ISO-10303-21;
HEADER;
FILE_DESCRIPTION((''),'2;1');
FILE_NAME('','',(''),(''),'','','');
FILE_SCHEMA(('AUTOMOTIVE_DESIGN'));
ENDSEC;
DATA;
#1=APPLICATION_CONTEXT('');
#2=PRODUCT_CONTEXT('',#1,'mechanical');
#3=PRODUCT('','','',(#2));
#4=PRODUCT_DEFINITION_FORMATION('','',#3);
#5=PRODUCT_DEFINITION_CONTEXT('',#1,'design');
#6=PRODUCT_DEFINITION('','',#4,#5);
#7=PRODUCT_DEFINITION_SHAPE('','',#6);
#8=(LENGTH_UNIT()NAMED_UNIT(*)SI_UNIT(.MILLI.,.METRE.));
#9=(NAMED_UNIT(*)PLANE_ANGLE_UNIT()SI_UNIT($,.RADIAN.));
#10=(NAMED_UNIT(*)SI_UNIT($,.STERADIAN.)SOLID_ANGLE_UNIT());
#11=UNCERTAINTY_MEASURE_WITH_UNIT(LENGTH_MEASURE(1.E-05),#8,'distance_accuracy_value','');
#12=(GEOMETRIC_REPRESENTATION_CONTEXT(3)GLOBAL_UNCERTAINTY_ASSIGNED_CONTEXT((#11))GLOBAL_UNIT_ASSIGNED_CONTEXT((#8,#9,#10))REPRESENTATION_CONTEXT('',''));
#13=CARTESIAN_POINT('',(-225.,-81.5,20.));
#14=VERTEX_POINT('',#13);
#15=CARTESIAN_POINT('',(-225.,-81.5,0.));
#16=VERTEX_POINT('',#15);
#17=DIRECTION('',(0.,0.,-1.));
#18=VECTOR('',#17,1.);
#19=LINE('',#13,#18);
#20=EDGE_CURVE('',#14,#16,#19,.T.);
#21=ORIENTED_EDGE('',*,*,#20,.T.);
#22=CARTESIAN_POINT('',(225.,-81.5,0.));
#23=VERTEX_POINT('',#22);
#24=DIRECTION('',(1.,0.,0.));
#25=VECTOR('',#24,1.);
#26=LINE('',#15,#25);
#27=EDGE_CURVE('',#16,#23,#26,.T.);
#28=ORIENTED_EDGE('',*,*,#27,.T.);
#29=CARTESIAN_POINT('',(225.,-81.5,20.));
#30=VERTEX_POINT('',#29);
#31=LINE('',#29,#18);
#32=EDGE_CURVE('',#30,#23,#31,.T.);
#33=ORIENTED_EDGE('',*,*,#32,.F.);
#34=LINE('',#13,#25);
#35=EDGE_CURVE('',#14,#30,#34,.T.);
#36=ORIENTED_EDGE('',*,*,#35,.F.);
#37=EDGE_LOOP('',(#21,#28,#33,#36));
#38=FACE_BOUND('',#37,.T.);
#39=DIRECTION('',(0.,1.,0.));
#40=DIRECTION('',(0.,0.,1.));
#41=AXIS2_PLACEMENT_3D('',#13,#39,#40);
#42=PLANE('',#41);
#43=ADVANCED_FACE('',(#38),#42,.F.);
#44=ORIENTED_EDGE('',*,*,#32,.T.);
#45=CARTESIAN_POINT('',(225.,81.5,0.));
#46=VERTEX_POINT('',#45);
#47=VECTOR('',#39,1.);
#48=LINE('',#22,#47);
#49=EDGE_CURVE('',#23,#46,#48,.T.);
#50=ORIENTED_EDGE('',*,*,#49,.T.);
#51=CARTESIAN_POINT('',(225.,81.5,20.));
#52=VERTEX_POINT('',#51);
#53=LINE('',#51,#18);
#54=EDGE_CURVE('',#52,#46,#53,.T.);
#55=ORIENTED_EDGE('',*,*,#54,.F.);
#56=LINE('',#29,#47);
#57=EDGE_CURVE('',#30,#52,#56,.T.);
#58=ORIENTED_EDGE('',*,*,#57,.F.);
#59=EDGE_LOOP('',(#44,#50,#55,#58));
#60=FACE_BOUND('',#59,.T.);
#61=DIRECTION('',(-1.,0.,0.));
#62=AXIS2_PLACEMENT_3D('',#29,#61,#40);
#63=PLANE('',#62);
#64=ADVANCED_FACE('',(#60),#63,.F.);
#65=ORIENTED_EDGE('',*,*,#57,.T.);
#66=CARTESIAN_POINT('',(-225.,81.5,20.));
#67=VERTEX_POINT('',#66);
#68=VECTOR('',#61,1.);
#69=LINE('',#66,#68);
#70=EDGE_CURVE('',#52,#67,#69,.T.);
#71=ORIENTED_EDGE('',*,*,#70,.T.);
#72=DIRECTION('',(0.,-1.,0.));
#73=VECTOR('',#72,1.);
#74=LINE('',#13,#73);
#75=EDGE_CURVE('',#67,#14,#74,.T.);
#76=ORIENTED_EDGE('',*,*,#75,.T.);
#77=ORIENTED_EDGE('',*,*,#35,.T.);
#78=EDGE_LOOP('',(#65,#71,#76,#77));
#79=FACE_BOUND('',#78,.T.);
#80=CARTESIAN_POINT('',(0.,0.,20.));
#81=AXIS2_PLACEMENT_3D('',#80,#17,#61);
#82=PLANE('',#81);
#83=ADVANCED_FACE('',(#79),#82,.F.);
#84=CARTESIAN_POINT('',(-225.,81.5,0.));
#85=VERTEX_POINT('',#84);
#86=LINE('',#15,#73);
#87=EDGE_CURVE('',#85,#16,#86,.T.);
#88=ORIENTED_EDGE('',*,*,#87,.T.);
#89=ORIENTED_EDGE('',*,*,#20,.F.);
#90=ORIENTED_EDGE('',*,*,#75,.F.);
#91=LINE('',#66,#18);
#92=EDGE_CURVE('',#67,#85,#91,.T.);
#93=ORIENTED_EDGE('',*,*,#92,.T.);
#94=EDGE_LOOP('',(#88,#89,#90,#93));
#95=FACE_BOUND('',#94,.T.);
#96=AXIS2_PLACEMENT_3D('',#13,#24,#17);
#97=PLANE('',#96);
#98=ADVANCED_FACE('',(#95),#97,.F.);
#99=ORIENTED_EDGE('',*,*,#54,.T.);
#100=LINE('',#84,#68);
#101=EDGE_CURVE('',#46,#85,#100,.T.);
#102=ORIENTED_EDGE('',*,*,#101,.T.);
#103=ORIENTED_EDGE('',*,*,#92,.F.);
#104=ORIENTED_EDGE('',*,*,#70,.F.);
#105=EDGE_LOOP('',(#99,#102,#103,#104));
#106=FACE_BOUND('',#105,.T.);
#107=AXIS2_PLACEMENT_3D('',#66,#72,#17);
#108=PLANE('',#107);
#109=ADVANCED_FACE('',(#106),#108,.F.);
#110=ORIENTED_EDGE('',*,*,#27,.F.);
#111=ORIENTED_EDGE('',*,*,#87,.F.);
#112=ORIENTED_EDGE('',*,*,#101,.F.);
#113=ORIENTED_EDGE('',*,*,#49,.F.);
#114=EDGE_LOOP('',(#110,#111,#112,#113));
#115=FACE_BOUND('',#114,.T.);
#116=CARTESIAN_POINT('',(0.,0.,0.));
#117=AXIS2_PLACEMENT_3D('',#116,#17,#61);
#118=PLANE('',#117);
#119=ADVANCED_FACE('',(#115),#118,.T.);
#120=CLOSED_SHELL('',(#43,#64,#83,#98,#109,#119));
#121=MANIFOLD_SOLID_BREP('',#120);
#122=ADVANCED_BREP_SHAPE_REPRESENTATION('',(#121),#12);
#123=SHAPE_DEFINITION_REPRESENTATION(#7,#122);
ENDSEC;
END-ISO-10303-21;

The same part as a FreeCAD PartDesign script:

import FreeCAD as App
import Part
import Sketcher
from FreeCAD import Vector
Q = App.Units.Quantity

doc = App.newDocument("Part")
body = doc.addObject("PartDesign::Body", "Body")

# Sketch on XY plane
sketch1 = body.newObject("Sketcher::SketchObject", "Sketch")
sketch1.AttachmentSupport = (doc.getObject("XY_Plane"), [""])
sketch1.MapMode = "FlatFace"
sketch1.addGeometry([
    Part.LineSegment(Vector(-225, 82, 0), Vector(-225, -82, 0)),
    Part.LineSegment(Vector(-225, -82, 0), Vector(225, -82, 0)),
    Part.LineSegment(Vector(225, -82, 0), Vector(225, 82, 0)),
    Part.LineSegment(Vector(225, 82, 0), Vector(-225, 82, 0)),
], False)
sketch1.addConstraint([
    Sketcher.Constraint("Coincident", 0, 2, 1, 1),
    Sketcher.Constraint("Coincident", 1, 2, 2, 1),
    Sketcher.Constraint("Coincident", 2, 2, 3, 1),
    Sketcher.Constraint("Coincident", 3, 2, 0, 1),
    Sketcher.Constraint("Vertical", 0),
    Sketcher.Constraint("Horizontal", 1),
    Sketcher.Constraint("Vertical", 2),
    Sketcher.Constraint("Horizontal", 3),
    Sketcher.Constraint("Symmetric", 0, 2, 2, 2, -1, 1),
    Sketcher.Constraint("DistanceX", 1, 1, 1, 2, Q("450 mm")),
    Sketcher.Constraint("DistanceY", 0, 2, 0, 1, Q("163 mm")),
])
pad1 = body.newObject("PartDesign::Pad", "Pad")
pad1.Profile = sketch1
pad1.Length = 20

doc.recompute()
